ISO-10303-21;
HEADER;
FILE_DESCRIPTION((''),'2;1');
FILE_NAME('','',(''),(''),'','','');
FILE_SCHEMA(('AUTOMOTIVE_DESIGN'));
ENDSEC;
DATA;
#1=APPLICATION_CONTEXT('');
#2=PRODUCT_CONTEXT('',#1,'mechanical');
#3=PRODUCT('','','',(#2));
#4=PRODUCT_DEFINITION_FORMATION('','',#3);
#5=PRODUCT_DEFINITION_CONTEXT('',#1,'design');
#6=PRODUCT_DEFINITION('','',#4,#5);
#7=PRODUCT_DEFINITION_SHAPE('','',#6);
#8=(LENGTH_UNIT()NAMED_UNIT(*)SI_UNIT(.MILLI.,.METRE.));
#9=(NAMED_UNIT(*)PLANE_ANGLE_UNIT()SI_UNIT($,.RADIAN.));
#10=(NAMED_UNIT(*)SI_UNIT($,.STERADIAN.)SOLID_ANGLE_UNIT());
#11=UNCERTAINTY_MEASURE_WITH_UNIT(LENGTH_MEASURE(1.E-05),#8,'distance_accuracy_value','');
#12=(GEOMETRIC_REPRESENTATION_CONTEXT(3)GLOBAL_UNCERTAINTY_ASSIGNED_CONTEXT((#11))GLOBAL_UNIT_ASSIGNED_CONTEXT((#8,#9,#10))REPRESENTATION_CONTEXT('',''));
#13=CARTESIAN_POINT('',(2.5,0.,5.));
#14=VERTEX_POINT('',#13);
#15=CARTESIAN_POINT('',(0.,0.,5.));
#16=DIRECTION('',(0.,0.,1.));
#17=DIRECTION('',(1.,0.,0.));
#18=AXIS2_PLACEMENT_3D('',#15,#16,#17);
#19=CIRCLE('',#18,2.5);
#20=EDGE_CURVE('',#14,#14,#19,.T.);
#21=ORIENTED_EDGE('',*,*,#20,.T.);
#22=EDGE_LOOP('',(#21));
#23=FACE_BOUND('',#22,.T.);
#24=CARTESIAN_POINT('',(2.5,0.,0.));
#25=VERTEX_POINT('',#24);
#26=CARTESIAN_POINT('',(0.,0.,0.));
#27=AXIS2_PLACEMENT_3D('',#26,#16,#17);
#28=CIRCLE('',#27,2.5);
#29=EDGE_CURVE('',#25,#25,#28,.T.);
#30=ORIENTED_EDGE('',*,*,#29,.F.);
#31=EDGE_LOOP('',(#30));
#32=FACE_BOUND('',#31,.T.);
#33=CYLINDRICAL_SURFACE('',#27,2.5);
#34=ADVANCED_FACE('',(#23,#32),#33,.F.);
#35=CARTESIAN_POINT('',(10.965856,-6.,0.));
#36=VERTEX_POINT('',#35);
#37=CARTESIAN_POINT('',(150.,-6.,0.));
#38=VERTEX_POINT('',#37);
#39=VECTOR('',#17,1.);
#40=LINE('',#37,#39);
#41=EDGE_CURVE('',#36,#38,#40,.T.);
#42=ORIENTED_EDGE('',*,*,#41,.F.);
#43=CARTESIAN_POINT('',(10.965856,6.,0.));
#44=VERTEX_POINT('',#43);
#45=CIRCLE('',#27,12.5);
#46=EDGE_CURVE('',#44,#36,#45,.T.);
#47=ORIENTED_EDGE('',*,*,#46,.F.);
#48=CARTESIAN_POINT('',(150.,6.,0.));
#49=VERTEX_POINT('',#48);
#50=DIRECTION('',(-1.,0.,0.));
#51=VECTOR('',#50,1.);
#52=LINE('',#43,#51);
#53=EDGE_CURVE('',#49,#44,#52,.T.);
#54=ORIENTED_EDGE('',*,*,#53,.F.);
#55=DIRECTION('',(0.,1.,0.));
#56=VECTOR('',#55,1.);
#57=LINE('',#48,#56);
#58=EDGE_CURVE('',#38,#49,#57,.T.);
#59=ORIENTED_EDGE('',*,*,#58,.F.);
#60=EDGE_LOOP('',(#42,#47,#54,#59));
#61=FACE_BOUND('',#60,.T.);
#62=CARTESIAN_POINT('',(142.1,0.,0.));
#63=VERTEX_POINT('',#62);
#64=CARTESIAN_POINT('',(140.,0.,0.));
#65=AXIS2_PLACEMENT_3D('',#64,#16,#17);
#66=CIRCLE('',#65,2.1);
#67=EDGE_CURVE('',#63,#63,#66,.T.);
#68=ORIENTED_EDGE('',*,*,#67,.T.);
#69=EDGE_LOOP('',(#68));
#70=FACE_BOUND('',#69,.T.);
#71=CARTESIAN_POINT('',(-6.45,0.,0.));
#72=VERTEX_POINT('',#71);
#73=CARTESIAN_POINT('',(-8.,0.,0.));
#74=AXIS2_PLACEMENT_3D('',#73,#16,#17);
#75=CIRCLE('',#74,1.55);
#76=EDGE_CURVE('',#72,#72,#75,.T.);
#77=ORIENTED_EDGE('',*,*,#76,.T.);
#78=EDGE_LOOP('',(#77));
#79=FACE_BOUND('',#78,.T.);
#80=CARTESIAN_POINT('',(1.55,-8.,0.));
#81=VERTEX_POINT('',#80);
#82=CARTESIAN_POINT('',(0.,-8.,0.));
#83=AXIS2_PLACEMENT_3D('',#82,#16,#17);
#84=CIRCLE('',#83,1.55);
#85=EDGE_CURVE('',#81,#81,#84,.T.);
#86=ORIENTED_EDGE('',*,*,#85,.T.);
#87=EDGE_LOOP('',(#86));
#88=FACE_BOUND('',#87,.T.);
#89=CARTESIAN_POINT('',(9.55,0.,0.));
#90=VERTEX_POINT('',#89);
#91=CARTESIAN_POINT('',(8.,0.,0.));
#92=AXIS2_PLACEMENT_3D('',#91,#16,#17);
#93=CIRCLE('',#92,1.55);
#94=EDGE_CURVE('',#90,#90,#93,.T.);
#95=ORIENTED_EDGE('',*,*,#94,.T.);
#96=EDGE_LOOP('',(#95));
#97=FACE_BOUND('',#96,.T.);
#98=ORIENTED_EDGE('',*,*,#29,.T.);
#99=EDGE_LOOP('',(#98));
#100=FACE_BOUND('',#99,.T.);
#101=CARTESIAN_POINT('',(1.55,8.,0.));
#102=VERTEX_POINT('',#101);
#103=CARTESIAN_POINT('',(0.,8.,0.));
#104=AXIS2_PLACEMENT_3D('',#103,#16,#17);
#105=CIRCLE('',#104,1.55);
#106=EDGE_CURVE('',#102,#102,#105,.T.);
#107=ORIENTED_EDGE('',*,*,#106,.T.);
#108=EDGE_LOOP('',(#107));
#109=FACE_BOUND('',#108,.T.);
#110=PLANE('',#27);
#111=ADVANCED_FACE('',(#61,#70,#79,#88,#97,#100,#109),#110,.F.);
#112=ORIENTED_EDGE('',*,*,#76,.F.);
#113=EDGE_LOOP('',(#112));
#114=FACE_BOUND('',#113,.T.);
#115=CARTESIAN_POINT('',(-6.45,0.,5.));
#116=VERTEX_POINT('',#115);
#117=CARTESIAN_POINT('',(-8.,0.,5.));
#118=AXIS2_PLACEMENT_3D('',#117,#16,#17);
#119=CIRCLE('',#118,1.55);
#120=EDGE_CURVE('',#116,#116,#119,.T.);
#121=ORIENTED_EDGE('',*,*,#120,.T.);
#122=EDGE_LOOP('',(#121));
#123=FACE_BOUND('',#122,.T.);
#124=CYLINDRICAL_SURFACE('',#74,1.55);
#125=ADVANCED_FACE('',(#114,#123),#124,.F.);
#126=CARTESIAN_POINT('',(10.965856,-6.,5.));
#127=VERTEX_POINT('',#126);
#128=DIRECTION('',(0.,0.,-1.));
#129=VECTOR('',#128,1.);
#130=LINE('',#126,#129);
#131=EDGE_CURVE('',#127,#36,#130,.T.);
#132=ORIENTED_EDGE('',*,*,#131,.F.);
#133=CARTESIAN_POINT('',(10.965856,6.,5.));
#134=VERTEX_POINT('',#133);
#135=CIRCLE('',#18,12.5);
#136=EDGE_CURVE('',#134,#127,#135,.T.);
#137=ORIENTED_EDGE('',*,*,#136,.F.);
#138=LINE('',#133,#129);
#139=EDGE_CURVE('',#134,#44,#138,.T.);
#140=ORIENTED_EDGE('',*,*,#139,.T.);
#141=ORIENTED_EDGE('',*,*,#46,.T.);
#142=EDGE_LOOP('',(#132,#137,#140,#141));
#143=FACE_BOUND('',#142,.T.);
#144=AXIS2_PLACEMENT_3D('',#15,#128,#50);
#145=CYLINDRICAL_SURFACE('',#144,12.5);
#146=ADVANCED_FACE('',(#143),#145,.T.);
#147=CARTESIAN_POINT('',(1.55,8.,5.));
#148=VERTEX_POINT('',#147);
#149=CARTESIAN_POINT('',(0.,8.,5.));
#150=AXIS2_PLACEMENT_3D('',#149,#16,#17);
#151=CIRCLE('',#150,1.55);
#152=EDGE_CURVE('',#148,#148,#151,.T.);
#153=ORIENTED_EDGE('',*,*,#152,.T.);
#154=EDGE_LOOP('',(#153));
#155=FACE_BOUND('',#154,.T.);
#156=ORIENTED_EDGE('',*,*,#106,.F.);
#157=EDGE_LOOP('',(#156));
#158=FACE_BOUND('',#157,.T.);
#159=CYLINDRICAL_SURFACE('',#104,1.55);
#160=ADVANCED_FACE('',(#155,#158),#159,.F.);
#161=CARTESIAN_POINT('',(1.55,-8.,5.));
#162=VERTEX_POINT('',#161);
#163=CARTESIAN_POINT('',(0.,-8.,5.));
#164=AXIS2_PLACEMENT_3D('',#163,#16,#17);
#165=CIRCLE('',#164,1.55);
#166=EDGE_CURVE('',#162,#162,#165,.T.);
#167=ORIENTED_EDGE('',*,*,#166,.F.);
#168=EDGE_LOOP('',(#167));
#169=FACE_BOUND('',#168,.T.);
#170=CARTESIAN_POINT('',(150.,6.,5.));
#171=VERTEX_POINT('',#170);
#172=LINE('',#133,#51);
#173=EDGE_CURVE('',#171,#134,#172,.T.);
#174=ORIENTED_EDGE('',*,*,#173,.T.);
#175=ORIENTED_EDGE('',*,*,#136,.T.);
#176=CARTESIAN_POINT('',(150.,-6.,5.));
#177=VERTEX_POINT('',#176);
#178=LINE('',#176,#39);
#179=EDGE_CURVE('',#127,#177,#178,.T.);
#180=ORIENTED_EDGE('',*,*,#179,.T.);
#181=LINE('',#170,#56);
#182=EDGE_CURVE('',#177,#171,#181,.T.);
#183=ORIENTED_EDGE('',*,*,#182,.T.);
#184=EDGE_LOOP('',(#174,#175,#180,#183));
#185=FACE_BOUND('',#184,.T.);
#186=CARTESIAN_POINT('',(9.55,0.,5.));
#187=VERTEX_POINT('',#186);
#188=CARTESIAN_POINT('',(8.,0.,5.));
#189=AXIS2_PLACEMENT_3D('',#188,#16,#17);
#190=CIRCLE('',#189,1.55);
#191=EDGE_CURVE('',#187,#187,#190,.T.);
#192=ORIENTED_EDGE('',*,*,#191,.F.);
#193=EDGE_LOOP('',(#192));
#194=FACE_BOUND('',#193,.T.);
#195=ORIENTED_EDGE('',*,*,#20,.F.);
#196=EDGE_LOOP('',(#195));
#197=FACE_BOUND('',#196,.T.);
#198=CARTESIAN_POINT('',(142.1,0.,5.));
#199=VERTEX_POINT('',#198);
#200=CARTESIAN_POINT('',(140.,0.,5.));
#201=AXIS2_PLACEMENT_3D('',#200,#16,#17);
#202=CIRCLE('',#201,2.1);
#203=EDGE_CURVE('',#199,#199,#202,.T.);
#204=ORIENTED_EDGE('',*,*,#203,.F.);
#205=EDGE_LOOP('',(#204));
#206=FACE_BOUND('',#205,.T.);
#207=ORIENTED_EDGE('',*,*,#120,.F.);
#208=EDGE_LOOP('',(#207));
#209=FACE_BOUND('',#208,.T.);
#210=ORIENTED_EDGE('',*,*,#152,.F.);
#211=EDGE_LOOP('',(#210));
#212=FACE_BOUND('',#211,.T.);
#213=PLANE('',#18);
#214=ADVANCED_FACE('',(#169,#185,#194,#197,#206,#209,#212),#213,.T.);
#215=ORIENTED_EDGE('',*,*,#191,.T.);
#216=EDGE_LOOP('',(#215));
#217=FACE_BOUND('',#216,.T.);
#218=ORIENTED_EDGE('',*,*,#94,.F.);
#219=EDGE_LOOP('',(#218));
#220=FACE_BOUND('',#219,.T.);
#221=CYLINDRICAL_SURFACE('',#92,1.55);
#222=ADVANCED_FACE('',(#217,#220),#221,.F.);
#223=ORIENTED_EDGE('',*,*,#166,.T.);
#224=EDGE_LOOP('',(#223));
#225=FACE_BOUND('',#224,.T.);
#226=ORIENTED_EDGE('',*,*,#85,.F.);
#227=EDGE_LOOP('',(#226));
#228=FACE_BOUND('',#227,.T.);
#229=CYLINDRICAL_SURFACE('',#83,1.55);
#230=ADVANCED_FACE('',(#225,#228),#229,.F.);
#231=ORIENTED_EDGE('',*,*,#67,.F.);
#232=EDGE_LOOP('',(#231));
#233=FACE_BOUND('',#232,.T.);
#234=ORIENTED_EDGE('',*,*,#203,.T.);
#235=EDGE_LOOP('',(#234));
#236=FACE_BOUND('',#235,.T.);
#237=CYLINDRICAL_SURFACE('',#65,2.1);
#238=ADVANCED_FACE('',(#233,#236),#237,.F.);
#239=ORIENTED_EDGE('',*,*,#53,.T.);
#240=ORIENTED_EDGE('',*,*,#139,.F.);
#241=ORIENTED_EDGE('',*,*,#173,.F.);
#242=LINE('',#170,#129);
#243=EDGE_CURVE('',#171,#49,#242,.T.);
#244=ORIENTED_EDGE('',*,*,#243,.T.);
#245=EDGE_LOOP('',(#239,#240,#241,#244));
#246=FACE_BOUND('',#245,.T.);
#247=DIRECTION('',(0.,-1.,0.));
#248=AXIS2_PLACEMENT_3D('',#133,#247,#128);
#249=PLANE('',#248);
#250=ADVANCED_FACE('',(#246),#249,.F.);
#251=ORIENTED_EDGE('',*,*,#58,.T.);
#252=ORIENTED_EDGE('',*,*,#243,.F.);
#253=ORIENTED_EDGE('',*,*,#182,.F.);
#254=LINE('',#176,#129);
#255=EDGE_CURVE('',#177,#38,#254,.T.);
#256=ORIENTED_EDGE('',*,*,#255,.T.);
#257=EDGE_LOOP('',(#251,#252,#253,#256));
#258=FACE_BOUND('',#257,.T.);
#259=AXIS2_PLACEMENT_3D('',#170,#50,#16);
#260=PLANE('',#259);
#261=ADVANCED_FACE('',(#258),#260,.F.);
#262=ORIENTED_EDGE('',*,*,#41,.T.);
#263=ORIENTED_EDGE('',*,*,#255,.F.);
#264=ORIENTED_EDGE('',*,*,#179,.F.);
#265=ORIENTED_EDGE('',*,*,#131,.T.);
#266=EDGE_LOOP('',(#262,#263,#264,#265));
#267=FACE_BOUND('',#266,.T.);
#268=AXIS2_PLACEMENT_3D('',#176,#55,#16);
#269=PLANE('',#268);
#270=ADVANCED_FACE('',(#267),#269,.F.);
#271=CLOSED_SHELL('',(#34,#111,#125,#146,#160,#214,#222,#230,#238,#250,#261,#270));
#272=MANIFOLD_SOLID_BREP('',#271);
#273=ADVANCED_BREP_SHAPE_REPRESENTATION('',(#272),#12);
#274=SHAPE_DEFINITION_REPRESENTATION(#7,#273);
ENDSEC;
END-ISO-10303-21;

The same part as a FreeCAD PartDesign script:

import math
import FreeCAD as App
import Part
import Sketcher

V = App.Vector

doc = App.newDocument("Part")
params = doc.addObject("Spreadsheet::Sheet", "Params")
for row, (alias, value) in enumerate([
    ("sketch1_radius", "12.5 mm"),
    ("sketch1_height", "12 mm"),
    ("pad1_length", "5 mm"),
    ("sketch2_diameter", "5 mm"),
    ("sketch2_diameter2", "4.2 mm"),
    ("sketch2_diameter3", "3.1 mm"),
], start=1):
    params.set(f"A{row}", alias)
    params.set(f"B{row}", "=" + value)
    params.setAlias(f"B{row}", alias)

body = doc.addObject("PartDesign::Body", "Body")

sketch1 = body.newObject("Sketcher::SketchObject", "Sketch")
sketch1.AttachmentSupport = (doc.getObject("XY_Plane"), [""])
sketch1.MapMode = "FlatFace"
sketch1.addGeometry(Part.LineSegment(V(150, 6, 0), V(11, 6, 0)), False)
sketch1.addGeometry(Part.ArcOfCircle(Part.Circle(V(0, 0, 0), V(0, 0, 1), 12), math.radians(29), math.radians(331)), False)
sketch1.addGeometry(Part.LineSegment(V(11, -6, 0), V(150, -6, 0)), False)
sketch1.addGeometry(Part.LineSegment(V(150, -6, 0), V(150, 6, 0)), False)
sketch1.addConstraint(Sketcher.Constraint("Coincident", 0, 2, 1, 1))
sketch1.addConstraint(Sketcher.Constraint("Coincident", 1, 2, 2, 1))
sketch1.addConstraint(Sketcher.Constraint("Coincident", 2, 2, 3, 1))
sketch1.addConstraint(Sketcher.Constraint("Coincident", 3, 2, 0, 1))
sketch1.addConstraint(Sketcher.Constraint("Horizontal", 0))
sketch1.addConstraint(Sketcher.Constraint("Horizontal", 2))
sketch1.addConstraint(Sketcher.Constraint("Vertical", 3))
sketch1.addConstraint(Sketcher.Constraint("Coincident", 1, 3, -1, 1))
sketch1.addConstraint(Sketcher.Constraint("Vertical", 0, 2, 1, 2))
sketch1.addConstraint(Sketcher.Constraint("Radius", 1, 12.5))
sketch1.addConstraint(Sketcher.Constraint("DistanceY", 3, 1, 3, 2, 12.0))
sketch1.addConstraint(Sketcher.Constraint("DistanceX", -1, 1, 2, 2, 150.0))
sketch1.setExpression("Constraints[9]", "Params.sketch1_radius")
sketch1.setExpression("Constraints[10]", "Params.sketch1_height")
pad1 = body.newObject("PartDesign::Pad", "Pad")
pad1.Profile = sketch1
pad1.setExpression("Length", "Params.pad1_length")

sketch2 = body.newObject("Sketcher::SketchObject", "Sketch001")
sketch2.AttachmentSupport = (doc.getObject("XY_Plane"), [""])
sketch2.MapMode = "FlatFace"
sketch2.AttachmentOffset = App.Placement(V(0, 0, 5), App.Rotation())
sketch2.addGeometry(Part.Circle(V(140, 0, 0), V(0, 0, 1), 2.1), False)
sketch2.addGeometry(Part.Circle(V(0, 0, 0), V(0, 0, 1), 2.5), False)
sketch2.addGeometry(Part.Circle(V(0, 8, 0), V(0, 0, 1), 1.6), False)
sketch2.addGeometry(Part.Circle(V(8, 0, 0), V(0, 0, 1), 1.6), False)
sketch2.addGeometry(Part.Circle(V(0, -8, 0), V(0, 0, 1), 1.6), False)
sketch2.addGeometry(Part.Circle(V(-8, 0, 0), V(0, 0, 1), 1.6), False)
sketch2.addConstraint(Sketcher.Constraint("Coincident", 1, 3, -1, 1))
sketch2.addConstraint(Sketcher.Constraint("Equal", 2, 3))
sketch2.addConstraint(Sketcher.Constraint("Equal", 3, 4))
sketch2.addConstraint(Sketcher.Constraint("Equal", 4, 5))
sketch2.addConstraint(Sketcher.Constraint("Symmetric", 2, 3, 4, 3, -1, 1))
sketch2.addConstraint(Sketcher.Constraint("Symmetric", 3, 3, 5, 3, -1, 1))
sketch2.addConstraint(Sketcher.Constraint("PointOnObject", 0, 3, -1))
sketch2.addConstraint(Sketcher.Constraint("PointOnObject", 2, 3, -2))
sketch2.addConstraint(Sketcher.Constraint("PointOnObject", 3, 3, -1))
sketch2.addConstraint(Sketcher.Constraint("Diameter", 1, 5.0))
sketch2.addConstraint(Sketcher.Constraint("Diameter", 0, 4.2))
sketch2.addConstraint(Sketcher.Constraint("Diameter", 2, 3.1))
sketch2.addConstraint(Sketcher.Constraint("DistanceX", -1, 1, 0, 3, 140.0))
sketch2.addConstraint(Sketcher.Constraint("DistanceY", -1, 1, 2, 3, 8.0))
sketch2.addConstraint(Sketcher.Constraint("DistanceX", -1, 1, 3, 3, 8.0))
sketch2.setExpression("Constraints[9]", "Params.sketch2_diameter")
sketch2.setExpression("Constraints[10]", "Params.sketch2_diameter2")
sketch2.setExpression("Constraints[11]", "Params.sketch2_diameter3")
pocket1 = body.newObject("PartDesign::Pocket", "Pocket")
pocket1.Profile = sketch2
pocket1.Type = "ThroughAll"

doc.recompute()
